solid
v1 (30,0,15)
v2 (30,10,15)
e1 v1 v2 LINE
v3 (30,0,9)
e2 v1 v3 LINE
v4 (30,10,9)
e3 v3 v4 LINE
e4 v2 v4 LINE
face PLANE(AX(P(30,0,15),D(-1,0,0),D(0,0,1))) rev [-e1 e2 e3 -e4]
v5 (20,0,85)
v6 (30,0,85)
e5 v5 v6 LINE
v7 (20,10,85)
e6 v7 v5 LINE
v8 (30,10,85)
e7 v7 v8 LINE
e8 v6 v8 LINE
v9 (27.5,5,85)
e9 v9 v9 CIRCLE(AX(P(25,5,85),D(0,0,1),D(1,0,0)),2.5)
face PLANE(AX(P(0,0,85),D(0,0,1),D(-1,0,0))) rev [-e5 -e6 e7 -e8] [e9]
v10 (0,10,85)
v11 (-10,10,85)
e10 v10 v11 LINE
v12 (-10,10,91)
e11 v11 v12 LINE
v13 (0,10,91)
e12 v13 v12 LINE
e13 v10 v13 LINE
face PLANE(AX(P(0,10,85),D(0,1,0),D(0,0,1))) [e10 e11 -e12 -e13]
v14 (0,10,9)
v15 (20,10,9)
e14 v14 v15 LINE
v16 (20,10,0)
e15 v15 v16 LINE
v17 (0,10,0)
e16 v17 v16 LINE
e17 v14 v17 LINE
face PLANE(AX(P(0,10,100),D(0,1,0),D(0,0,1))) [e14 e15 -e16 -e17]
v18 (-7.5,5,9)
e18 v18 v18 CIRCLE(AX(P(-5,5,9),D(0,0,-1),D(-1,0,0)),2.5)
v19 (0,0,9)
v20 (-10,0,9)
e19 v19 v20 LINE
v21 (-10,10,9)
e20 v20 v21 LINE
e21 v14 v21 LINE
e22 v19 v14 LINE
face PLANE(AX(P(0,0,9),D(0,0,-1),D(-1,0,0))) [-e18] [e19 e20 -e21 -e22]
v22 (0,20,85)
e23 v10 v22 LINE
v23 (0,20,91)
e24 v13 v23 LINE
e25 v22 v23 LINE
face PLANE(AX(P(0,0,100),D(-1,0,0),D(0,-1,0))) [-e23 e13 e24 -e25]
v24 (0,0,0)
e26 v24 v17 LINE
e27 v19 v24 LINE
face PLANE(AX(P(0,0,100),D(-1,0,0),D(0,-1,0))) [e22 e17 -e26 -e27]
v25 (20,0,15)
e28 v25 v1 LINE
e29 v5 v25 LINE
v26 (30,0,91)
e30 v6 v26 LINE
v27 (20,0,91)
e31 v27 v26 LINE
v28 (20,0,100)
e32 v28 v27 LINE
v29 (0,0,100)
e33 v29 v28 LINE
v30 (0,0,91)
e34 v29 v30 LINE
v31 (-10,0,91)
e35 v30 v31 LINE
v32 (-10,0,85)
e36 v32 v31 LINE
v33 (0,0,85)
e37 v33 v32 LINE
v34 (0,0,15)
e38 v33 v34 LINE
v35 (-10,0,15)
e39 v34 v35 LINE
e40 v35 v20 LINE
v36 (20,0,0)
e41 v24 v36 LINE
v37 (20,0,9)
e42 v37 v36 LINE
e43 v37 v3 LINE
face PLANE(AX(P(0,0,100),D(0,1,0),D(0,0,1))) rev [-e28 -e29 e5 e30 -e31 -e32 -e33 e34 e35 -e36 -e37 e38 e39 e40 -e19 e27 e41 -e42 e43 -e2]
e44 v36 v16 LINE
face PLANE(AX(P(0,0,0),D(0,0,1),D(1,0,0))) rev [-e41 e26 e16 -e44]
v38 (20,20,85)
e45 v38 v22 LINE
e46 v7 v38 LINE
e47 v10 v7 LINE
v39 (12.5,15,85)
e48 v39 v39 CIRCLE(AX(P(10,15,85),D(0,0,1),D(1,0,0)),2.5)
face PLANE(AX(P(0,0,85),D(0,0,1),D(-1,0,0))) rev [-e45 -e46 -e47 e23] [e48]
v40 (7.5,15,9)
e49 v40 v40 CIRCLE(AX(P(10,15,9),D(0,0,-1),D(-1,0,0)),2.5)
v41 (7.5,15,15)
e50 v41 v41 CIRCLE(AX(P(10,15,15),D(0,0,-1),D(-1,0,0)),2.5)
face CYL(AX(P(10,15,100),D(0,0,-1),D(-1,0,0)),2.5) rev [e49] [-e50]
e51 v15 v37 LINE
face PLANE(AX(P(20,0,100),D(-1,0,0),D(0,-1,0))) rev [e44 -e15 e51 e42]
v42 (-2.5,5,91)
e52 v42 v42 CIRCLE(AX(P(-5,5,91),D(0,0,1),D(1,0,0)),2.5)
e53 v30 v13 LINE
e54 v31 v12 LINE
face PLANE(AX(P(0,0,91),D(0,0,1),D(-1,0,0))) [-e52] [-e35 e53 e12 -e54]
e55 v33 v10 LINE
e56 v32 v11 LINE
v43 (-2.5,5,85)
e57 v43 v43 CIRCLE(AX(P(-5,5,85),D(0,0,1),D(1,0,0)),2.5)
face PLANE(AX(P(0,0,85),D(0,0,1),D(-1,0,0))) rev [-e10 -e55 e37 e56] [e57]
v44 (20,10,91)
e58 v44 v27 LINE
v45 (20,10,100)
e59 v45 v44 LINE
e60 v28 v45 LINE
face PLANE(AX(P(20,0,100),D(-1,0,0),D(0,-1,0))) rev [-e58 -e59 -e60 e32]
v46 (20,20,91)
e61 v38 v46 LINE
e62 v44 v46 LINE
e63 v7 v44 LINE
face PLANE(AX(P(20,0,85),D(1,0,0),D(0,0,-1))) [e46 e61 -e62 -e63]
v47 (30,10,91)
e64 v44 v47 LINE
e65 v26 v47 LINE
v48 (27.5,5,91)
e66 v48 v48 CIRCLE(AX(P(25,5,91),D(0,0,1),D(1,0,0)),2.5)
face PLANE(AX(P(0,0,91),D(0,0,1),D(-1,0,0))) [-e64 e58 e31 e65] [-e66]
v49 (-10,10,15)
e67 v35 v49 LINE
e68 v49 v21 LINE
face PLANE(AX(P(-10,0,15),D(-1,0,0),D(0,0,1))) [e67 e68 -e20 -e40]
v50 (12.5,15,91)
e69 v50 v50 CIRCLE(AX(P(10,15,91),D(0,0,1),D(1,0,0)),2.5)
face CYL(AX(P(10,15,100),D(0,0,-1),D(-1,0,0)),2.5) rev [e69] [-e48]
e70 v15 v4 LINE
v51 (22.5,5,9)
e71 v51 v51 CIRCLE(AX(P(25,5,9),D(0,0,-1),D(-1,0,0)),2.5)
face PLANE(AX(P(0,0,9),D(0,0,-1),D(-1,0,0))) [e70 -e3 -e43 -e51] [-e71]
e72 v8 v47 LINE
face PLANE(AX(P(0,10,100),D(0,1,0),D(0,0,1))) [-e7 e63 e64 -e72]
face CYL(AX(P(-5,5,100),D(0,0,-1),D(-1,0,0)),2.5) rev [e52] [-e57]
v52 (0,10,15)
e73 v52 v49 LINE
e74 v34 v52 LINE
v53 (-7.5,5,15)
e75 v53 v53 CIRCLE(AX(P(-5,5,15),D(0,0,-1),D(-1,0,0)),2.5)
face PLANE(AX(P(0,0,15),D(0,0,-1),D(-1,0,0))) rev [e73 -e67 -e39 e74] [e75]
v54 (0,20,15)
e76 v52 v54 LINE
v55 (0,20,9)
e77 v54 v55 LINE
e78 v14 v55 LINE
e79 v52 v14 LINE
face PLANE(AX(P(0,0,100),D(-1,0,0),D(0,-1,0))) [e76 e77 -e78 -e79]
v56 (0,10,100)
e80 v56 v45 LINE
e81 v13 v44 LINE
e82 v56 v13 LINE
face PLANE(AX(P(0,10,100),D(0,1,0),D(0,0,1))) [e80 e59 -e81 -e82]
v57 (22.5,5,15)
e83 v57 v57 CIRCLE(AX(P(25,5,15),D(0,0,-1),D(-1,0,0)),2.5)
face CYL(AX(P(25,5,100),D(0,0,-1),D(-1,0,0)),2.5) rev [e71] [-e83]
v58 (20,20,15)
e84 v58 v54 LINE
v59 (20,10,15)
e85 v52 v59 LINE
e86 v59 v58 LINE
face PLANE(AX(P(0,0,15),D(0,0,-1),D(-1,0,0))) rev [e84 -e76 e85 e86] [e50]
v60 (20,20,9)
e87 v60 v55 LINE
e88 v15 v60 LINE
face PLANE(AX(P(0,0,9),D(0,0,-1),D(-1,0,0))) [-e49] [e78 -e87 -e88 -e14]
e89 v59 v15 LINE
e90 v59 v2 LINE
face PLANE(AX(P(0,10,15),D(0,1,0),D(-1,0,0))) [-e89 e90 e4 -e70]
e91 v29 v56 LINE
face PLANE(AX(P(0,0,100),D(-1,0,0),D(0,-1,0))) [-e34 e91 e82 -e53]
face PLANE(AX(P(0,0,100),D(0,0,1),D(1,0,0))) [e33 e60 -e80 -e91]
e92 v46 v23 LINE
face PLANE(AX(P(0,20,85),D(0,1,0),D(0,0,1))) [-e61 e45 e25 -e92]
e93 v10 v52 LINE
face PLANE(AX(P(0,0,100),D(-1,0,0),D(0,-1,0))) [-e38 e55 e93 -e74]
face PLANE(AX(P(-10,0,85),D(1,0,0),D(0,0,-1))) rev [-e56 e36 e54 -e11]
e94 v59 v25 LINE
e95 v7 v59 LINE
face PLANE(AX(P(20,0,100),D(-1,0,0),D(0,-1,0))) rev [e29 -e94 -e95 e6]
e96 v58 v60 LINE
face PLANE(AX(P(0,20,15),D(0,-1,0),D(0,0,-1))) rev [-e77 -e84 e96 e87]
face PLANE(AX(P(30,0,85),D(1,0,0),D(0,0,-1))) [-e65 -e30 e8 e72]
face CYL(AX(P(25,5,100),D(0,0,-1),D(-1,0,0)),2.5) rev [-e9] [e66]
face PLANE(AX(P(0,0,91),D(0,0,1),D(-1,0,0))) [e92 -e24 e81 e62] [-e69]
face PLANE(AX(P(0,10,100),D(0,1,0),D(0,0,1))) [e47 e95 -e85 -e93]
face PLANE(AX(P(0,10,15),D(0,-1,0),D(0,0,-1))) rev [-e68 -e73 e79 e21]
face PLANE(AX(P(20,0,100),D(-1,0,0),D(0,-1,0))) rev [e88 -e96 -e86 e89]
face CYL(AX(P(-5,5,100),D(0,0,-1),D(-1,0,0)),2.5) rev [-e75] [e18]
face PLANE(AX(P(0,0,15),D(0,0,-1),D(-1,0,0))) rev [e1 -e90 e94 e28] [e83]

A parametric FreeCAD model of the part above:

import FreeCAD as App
import Part
import Sketcher


def add_polygon(sketch, points):
    """Adds a closed chain of lines whose ends are joined by coincident constraints."""
    first, n = sketch.GeometryCount, len(points)
    for a, b in zip(points, points[1:] + points[:1]):
        sketch.addGeometry(Part.LineSegment(App.Vector(*a, 0), App.Vector(*b, 0)), False)
    for i in range(n):
        sketch.addConstraint(Sketcher.Constraint("Coincident", first + i, 2, first + (i + 1) % n, 1))

doc = App.newDocument("Part")
params = doc.addObject("Spreadsheet::Sheet", "Params")
for row, (alias, value) in enumerate([
    ("sketch1_width", "20 mm"),
    ("sketch1_height", "10 mm"),
    ("pad1_length", "100 mm"),
    ("sketch2_width", "10 mm"),
    ("sketch2_width2", "20 mm"),
    ("pad2_length", "6 mm"),
    ("sketch3_diameter", "5 mm"),
], start=1):
    params.set(f"A{row}", alias)
    params.set(f"B{row}", "=" + value)
    params.setAlias(f"B{row}", alias)

body = doc.addObject("PartDesign::Body", "Body")

# Sketch on XY plane
sketch1 = doc.addObject("Sketcher::SketchObject", "Sketch")
body.addObject(sketch1)
sketch1.AttachmentSupport = (doc.XY_Plane, [""])
sketch1.MapMode = "FlatFace"
add_polygon(sketch1, [(0, 10), (0, 0), (20, 0), (20, 10)])  # lines 0-3
sketch1.addConstraint(Sketcher.Constraint("Vertical", 0))
sketch1.addConstraint(Sketcher.Constraint("Horizontal", 1))
sketch1.addConstraint(Sketcher.Constraint("Vertical", 2))
sketch1.addConstraint(Sketcher.Constraint("Horizontal", 3))
sketch1.addConstraint(Sketcher.Constraint("Coincident", 0, 2, -1, 1))
sketch1.addConstraint(Sketcher.Constraint("DistanceX", 1, 1, 1, 2, 20.0))
sketch1.addConstraint(Sketcher.Constraint("DistanceY", 0, 2, 0, 1, 10.0))
sketch1.setExpression("Constraints[9]", "Params.sketch1_width")
sketch1.setExpression("Constraints[10]", "Params.sketch1_height")
pad1 = doc.addObject("PartDesign::Pad", "Pad")
body.addObject(pad1)
pad1.Profile = sketch1
pad1.setExpression("Length", "Params.pad1_length")

# Sketch on XY plane
sketch2 = doc.addObject("Sketcher::SketchObject", "Sketch001")
body.addObject(sketch2)
sketch2.AttachmentSupport = (doc.XY_Plane, [""])
sketch2.MapMode = "FlatFace"
sketch2.AttachmentOffset = App.Placement(App.Vector(0, 0, 9), App.Rotation())
add_polygon(sketch2, [(30, 10), (30, 0), (20, 0), (20, 10)])  # lines 0-3
add_polygon(sketch2, [(20, 20), (20, 10), (0, 10), (0, 20)])  # lines 4-7
add_polygon(sketch2, [(0, 10), (0, 0), (-10, 0), (-10, 10)])  # lines 8-11
sketch2.addConstraint(Sketcher.Constraint("Vertical", 0))
sketch2.addConstraint(Sketcher.Constraint("Horizontal", 1))
sketch2.addConstraint(Sketcher.Constraint("Vertical", 2))
sketch2.addConstraint(Sketcher.Constraint("Horizontal", 3))
sketch2.addConstraint(Sketcher.Constraint("Vertical", 4))
sketch2.addConstraint(Sketcher.Constraint("Horizontal", 5))
sketch2.addConstraint(Sketcher.Constraint("Vertical", 6))
sketch2.addConstraint(Sketcher.Constraint("Horizontal", 7))
sketch2.addConstraint(Sketcher.Constraint("Vertical", 8))
sketch2.addConstraint(Sketcher.Constraint("Horizontal", 9))
sketch2.addConstraint(Sketcher.Constraint("Vertical", 10))
sketch2.addConstraint(Sketcher.Constraint("Horizontal", 11))
sketch2.addConstraint(Sketcher.Constraint("Coincident", 8, 2, -1, 1))
sketch2.addConstraint(Sketcher.Constraint("Coincident", 4, 2, 2, 2))
sketch2.addConstraint(Sketcher.Constraint("Coincident", 11, 2, 5, 2))
sketch2.addConstraint(Sketcher.Constraint("PointOnObject", 0, 2, -1))
sketch2.addConstraint(Sketcher.Constraint("Equal", 3, 9))
sketch2.addConstraint(Sketcher.Constraint("Equal", 11, 0))
sketch2.addConstraint(Sketcher.Constraint("Equal", 2, 4))
sketch2.addConstraint(Sketcher.Constraint("DistanceX", 1, 2, 1, 1, 10.0))
sketch2.addConstraint(Sketcher.Constraint("DistanceX", 5, 2, 5, 1, 20.0))
sketch2.setExpression("Constraints[31]", "Params.sketch2_width")
sketch2.setExpression("Constraints[32]", "Params.sketch2_width2")
pad2 = doc.addObject("PartDesign::Pad", "Pad001")
body.addObject(pad2)
pad2.Profile = sketch2
pad2.setExpression("Length", "Params.pad2_length")
doc.recompute()

datumplane = doc.addObject("PartDesign::Plane", "DatumPlane")
body.addObject(datumplane)
datumplane.AttachmentSupport = (doc.XY_Plane, [""])
datumplane.MapMode = "FlatFace"
datumplane.AttachmentOffset = App.Placement(App.Vector(0, 0, 50), App.Rotation())
mirrored = doc.addObject("PartDesign::Mirrored", "Mirrored")
body.addObject(mirrored)
mirrored.Originals = [pad2]
mirrored.MirrorPlane = (datumplane, [""])
body.Tip = mirrored

# Sketch on XY plane
sketch3 = doc.addObject("Sketcher::SketchObject", "Sketch002")
body.addObject(sketch3)
sketch3.AttachmentSupport = (doc.XY_Plane, [""])
sketch3.MapMode = "FlatFace"
sketch3.AttachmentOffset = App.Placement(App.Vector(0, 0, 9), App.Rotation())
sketch3.addGeometry(Part.Circle(App.Vector(-5, 5, 0), App.Vector(0, 0, 1), 2.5), False)
sketch3.addGeometry(Part.Circle(App.Vector(10, 15, 0), App.Vector(0, 0, 1), 2.5), False)
sketch3.addGeometry(Part.Circle(App.Vector(25, 5, 0), App.Vector(0, 0, 1), 2.5), False)
sketch3.addConstraint(Sketcher.Constraint("Equal", 0, 1))
sketch3.addConstraint(Sketcher.Constraint("Equal", 1, 2))
sketch3.addConstraint(Sketcher.Constraint("Horizontal", 0, 3, 2, 3))
sketch3.addConstraint(Sketcher.Constraint("Diameter", 0, 5.0))
sketch3.addConstraint(Sketcher.Constraint("DistanceX", 0, 3, -1, 1, 5.0))
sketch3.addConstraint(Sketcher.Constraint("DistanceY", -1, 1, 0, 3, 5.0))
sketch3.addConstraint(Sketcher.Constraint("DistanceX", -1, 1, 1, 3, 10.0))
sketch3.addConstraint(Sketcher.Constraint("DistanceY", -1, 1, 1, 3, 15.0))
sketch3.addConstraint(Sketcher.Constraint("DistanceX", -1, 1, 2, 3, 25.0))
sketch3.setExpression("Constraints[3]", "Params.sketch3_diameter")
pocket1 = doc.addObject("PartDesign::Pocket", "Pocket")
body.addObject(pocket1)
pocket1.Profile = sketch3
pocket1.Type = "ThroughAll"
pocket1.Midplane = True

doc.recompute()
